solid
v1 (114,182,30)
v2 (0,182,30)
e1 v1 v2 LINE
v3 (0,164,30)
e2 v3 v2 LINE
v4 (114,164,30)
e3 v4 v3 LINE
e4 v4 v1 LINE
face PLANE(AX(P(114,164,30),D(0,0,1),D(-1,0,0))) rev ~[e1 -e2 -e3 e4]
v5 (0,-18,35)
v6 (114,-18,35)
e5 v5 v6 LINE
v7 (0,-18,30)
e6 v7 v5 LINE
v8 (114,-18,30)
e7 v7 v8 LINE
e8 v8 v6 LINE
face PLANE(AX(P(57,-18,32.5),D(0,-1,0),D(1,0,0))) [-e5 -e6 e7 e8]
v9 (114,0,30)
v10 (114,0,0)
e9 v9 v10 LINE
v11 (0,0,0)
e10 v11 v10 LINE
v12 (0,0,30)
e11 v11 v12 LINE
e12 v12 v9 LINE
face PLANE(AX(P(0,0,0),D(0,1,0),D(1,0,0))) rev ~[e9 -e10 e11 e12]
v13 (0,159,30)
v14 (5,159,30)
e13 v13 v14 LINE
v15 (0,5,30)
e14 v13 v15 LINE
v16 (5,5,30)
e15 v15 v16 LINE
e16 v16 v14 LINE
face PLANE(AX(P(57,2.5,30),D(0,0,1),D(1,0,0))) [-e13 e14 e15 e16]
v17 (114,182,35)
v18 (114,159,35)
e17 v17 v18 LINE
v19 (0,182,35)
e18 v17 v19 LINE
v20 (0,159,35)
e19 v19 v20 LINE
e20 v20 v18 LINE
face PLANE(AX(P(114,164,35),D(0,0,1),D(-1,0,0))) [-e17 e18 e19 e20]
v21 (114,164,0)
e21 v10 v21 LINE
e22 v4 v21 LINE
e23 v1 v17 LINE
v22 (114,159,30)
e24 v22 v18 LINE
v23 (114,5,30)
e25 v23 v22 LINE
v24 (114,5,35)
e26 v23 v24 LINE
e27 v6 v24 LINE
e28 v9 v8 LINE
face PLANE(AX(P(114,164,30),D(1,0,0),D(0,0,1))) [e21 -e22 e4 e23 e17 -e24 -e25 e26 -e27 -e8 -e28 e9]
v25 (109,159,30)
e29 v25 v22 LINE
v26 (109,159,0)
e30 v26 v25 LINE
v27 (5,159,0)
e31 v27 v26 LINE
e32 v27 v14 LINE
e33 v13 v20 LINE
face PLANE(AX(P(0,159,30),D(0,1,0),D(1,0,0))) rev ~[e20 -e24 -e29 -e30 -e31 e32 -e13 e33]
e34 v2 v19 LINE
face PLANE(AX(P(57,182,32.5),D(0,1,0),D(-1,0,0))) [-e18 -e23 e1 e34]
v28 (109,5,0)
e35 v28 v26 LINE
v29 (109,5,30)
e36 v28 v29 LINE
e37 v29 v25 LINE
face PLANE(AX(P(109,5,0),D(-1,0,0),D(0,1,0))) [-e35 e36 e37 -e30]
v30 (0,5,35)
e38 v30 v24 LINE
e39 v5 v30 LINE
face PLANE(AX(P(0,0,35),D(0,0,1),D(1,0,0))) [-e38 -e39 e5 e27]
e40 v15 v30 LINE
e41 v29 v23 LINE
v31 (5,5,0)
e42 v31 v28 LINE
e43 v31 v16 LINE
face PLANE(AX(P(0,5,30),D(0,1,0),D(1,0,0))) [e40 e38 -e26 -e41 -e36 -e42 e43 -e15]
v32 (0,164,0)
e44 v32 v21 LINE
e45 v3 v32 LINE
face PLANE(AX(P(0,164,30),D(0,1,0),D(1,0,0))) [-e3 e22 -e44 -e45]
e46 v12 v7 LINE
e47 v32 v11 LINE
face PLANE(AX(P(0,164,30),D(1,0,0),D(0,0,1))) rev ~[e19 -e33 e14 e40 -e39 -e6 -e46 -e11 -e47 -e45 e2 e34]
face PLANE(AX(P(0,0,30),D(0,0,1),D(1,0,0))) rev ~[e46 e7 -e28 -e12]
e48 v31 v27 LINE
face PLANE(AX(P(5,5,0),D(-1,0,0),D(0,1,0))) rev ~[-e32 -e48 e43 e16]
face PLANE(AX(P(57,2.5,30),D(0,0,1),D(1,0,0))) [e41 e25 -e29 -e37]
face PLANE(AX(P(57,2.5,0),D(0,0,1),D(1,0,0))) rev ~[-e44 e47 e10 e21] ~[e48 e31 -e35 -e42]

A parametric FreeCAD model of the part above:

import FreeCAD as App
import Part
import Sketcher
from FreeCAD import Vector

doc = App.newDocument("Part")
body = doc.addObject("PartDesign::Body", "Body")

sketch1 = doc.addObject("Sketcher::SketchObject", "Sketch")
body.addObject(sketch1)
sketch1.AttachmentSupport = (doc.XY_Plane, [""])
sketch1.MapMode = "FlatFace"
sketch1.addGeometry([
    Part.LineSegment(Vector(0, 0, 0), Vector(114, 0, 0)),
    Part.LineSegment(Vector(114, 0, 0), Vector(114, 164, 0)),
    Part.LineSegment(Vector(114, 164, 0), Vector(0, 164, 0)),
    Part.LineSegment(Vector(0, 164, 0), Vector(0, 0, 0)),
    Part.LineSegment(Vector(109, 159, 0), Vector(109, 5, 0)),
    Part.LineSegment(Vector(109, 5, 0), Vector(5, 5, 0)),
    Part.LineSegment(Vector(5, 5, 0), Vector(5, 159, 0)),
    Part.LineSegment(Vector(5, 159, 0), Vector(109, 159, 0)),
], False)
sketch1.addConstraint([
    Sketcher.Constraint("Coincident", 0, 2, 1, 1),
    Sketcher.Constraint("Coincident", 1, 2, 2, 1),
    Sketcher.Constraint("Coincident", 2, 2, 3, 1),
    Sketcher.Constraint("Coincident", 3, 2, 0, 1),
    Sketcher.Constraint("Coincident", 4, 2, 5, 1),
    Sketcher.Constraint("Coincident", 5, 2, 6, 1),
    Sketcher.Constraint("Coincident", 6, 2, 7, 1),
    Sketcher.Constraint("Coincident", 7, 2, 4, 1),
    Sketcher.Constraint("Horizontal", 0),
    Sketcher.Constraint("Vertical", 1),
    Sketcher.Constraint("Horizontal", 2),
    Sketcher.Constraint("Vertical", 3),
    Sketcher.Constraint("Vertical", 4),
    Sketcher.Constraint("Horizontal", 5),
    Sketcher.Constraint("Vertical", 6),
    Sketcher.Constraint("Horizontal", 7),
    Sketcher.Constraint("Coincident", 3, 2, -1, 1),
    Sketcher.Constraint("DistanceX", 0, 1, 0, 2, 114.0),
    Sketcher.Constraint("DistanceX", 5, 2, 5, 1, 104.0),
    Sketcher.Constraint("DistanceY", 1, 1, 1, 2, 164.0),
    Sketcher.Constraint("DistanceY", 4, 2, 4, 1, 154.0),
    Sketcher.Constraint("DistanceX", -1, 1, 4, 2, 109.0),
    Sketcher.Constraint("DistanceY", -1, 1, 4, 2, 5.0),
])
pad1 = doc.addObject("PartDesign::Pad", "Pad")
body.addObject(pad1)
pad1.Profile = sketch1
pad1.Length = 30

sketch2 = doc.addObject("Sketcher::SketchObject", "Sketch001")
body.addObject(sketch2)
sketch2.AttachmentSupport = (doc.XY_Plane, [""])
sketch2.MapMode = "FlatFace"
sketch2.AttachmentOffset = App.Placement(Vector(0, 0, 30), App.Rotation())
sketch2.addGeometry([
    Part.LineSegment(Vector(0, 164, 0), Vector(0, 159, 0)),
    Part.LineSegment(Vector(0, 159, 0), Vector(114, 159, 0)),
    Part.LineSegment(Vector(114, 159, 0), Vector(114, 164, 0)),
    Part.LineSegment(Vector(114, 164, 0), Vector(0, 164, 0)),
    Part.LineSegment(Vector(0, 5, 0), Vector(0, 0, 0)),
    Part.LineSegment(Vector(0, 0, 0), Vector(114, 0, 0)),
    Part.LineSegment(Vector(114, 0, 0), Vector(114, 5, 0)),
    Part.LineSegment(Vector(114, 5, 0), Vector(0, 5, 0)),
], False)
sketch2.addConstraint([
    Sketcher.Constraint("Coincident", 0, 2, 1, 1),
    Sketcher.Constraint("Coincident", 1, 2, 2, 1),
    Sketcher.Constraint("Coincident", 2, 2, 3, 1),
    Sketcher.Constraint("Coincident", 3, 2, 0, 1),
    Sketcher.Constraint("Coincident", 4, 2, 5, 1),
    Sketcher.Constraint("Coincident", 5, 2, 6, 1),
    Sketcher.Constraint("Coincident", 6, 2, 7, 1),
    Sketcher.Constraint("Coincident", 7, 2, 4, 1),
    Sketcher.Constraint("Vertical", 0),
    Sketcher.Constraint("Horizontal", 1),
    Sketcher.Constraint("Vertical", 2),
    Sketcher.Constraint("Horizontal", 3),
    Sketcher.Constraint("Vertical", 4),
    Sketcher.Constraint("Horizontal", 5),
    Sketcher.Constraint("Vertical", 6),
    Sketcher.Constraint("Horizontal", 7),
    Sketcher.Constraint("Coincident", 4, 2, -1, 1),
    Sketcher.Constraint("PointOnObject", 0, 2, -2),
    Sketcher.Constraint("Vertical", 2, 2, 5, 2),
    Sketcher.Constraint("Equal", 2, 4),
    Sketcher.Constraint("DistanceX", 1, 1, 1, 2, 114.0),
    Sketcher.Constraint("DistanceY", 0, 2, 0, 1, 5.0),
    Sketcher.Constraint("DistanceY", -1, 1, 0, 2, 159.0),
])
pad2 = doc.addObject("PartDesign::Pad", "Pad001")
body.addObject(pad2)
pad2.Profile = sketch2
pad2.Length = 5

sketch3 = doc.addObject("Sketcher::SketchObject", "Sketch002")
body.addObject(sketch3)
sketch3.AttachmentSupport = (doc.XZ_Plane, [""])
sketch3.MapMode = "FlatFace"
sketch3.addGeometry([
    Part.LineSegment(Vector(0, 35, 0), Vector(0, 30, 0)),
    Part.LineSegment(Vector(0, 30, 0), Vector(114, 30, 0)),
    Part.LineSegment(Vector(114, 30, 0), Vector(114, 35, 0)),
    Part.LineSegment(Vector(114, 35, 0), Vector(0, 35, 0)),
], False)
sketch3.addConstraint([
    Sketcher.Constraint("Coincident", 0, 2, 1, 1),
    Sketcher.Constraint("Coincident", 1, 2, 2, 1),
    Sketcher.Constraint("Coincident", 2, 2, 3, 1),
    Sketcher.Constraint("Coincident", 3, 2, 0, 1),
    Sketcher.Constraint("Vertical", 0),
    Sketcher.Constraint("Horizontal", 1),
    Sketcher.Constraint("Vertical", 2),
    Sketcher.Constraint("Horizontal", 3),
    Sketcher.Constraint("PointOnObject", 0, 2, -2),
    Sketcher.Constraint("DistanceX", 1, 1, 1, 2, 114.0),
    Sketcher.Constraint("DistanceY", 0, 2, 0, 1, 5.0),
    Sketcher.Constraint("DistanceY", -1, 1, 0, 2, 30.0),
])
pad3 = doc.addObject("PartDesign::Pad", "Pad002")
body.addObject(pad3)
pad3.Profile = sketch3
pad3.Length = 18

sketch4 = doc.addObject("Sketcher::SketchObject", "Sketch003")
body.addObject(sketch4)
sketch4.AttachmentSupport = (doc.XZ_Plane, [""])
sketch4.MapMode = "FlatFace"
sketch4.AttachmentOffset = App.Placement(Vector(0, 0, -164), App.Rotation())
sketch4.addGeometry([
    Part.LineSegment(Vector(114, 35, 0), Vector(114, 30, 0)),
    Part.LineSegment(Vector(114, 30, 0), Vector(0, 30, 0)),
    Part.LineSegment(Vector(0, 30, 0), Vector(0, 35, 0)),
    Part.LineSegment(Vector(0, 35, 0), Vector(114, 35, 0)),
], False)
sketch4.addConstraint([
    Sketcher.Constraint("Coincident", 0, 2, 1, 1),
    Sketcher.Constraint("Coincident", 1, 2, 2, 1),
    Sketcher.Constraint("Coincident", 2, 2, 3, 1),
    Sketcher.Constraint("Coincident", 3, 2, 0, 1),
    Sketcher.Constraint("Vertical", 0),
    Sketcher.Constraint("Horizontal", 1),
    Sketcher.Constraint("Vertical", 2),
    Sketcher.Constraint("Horizontal", 3),
    Sketcher.Constraint("PointOnObject", 1, 2, -2),
    Sketcher.Constraint("DistanceX", 1, 2, 1, 1, 114.0),
    Sketcher.Constraint("DistanceY", 0, 2, 0, 1, 5.0),
    Sketcher.Constraint("DistanceY", -1, 1, 0, 2, 30.0),
])
pad4 = doc.addObject("PartDesign::Pad", "Pad003")
body.addObject(pad4)
pad4.Profile = sketch4
pad4.Length = 18
pad4.Reversed = True

doc.recompute()
